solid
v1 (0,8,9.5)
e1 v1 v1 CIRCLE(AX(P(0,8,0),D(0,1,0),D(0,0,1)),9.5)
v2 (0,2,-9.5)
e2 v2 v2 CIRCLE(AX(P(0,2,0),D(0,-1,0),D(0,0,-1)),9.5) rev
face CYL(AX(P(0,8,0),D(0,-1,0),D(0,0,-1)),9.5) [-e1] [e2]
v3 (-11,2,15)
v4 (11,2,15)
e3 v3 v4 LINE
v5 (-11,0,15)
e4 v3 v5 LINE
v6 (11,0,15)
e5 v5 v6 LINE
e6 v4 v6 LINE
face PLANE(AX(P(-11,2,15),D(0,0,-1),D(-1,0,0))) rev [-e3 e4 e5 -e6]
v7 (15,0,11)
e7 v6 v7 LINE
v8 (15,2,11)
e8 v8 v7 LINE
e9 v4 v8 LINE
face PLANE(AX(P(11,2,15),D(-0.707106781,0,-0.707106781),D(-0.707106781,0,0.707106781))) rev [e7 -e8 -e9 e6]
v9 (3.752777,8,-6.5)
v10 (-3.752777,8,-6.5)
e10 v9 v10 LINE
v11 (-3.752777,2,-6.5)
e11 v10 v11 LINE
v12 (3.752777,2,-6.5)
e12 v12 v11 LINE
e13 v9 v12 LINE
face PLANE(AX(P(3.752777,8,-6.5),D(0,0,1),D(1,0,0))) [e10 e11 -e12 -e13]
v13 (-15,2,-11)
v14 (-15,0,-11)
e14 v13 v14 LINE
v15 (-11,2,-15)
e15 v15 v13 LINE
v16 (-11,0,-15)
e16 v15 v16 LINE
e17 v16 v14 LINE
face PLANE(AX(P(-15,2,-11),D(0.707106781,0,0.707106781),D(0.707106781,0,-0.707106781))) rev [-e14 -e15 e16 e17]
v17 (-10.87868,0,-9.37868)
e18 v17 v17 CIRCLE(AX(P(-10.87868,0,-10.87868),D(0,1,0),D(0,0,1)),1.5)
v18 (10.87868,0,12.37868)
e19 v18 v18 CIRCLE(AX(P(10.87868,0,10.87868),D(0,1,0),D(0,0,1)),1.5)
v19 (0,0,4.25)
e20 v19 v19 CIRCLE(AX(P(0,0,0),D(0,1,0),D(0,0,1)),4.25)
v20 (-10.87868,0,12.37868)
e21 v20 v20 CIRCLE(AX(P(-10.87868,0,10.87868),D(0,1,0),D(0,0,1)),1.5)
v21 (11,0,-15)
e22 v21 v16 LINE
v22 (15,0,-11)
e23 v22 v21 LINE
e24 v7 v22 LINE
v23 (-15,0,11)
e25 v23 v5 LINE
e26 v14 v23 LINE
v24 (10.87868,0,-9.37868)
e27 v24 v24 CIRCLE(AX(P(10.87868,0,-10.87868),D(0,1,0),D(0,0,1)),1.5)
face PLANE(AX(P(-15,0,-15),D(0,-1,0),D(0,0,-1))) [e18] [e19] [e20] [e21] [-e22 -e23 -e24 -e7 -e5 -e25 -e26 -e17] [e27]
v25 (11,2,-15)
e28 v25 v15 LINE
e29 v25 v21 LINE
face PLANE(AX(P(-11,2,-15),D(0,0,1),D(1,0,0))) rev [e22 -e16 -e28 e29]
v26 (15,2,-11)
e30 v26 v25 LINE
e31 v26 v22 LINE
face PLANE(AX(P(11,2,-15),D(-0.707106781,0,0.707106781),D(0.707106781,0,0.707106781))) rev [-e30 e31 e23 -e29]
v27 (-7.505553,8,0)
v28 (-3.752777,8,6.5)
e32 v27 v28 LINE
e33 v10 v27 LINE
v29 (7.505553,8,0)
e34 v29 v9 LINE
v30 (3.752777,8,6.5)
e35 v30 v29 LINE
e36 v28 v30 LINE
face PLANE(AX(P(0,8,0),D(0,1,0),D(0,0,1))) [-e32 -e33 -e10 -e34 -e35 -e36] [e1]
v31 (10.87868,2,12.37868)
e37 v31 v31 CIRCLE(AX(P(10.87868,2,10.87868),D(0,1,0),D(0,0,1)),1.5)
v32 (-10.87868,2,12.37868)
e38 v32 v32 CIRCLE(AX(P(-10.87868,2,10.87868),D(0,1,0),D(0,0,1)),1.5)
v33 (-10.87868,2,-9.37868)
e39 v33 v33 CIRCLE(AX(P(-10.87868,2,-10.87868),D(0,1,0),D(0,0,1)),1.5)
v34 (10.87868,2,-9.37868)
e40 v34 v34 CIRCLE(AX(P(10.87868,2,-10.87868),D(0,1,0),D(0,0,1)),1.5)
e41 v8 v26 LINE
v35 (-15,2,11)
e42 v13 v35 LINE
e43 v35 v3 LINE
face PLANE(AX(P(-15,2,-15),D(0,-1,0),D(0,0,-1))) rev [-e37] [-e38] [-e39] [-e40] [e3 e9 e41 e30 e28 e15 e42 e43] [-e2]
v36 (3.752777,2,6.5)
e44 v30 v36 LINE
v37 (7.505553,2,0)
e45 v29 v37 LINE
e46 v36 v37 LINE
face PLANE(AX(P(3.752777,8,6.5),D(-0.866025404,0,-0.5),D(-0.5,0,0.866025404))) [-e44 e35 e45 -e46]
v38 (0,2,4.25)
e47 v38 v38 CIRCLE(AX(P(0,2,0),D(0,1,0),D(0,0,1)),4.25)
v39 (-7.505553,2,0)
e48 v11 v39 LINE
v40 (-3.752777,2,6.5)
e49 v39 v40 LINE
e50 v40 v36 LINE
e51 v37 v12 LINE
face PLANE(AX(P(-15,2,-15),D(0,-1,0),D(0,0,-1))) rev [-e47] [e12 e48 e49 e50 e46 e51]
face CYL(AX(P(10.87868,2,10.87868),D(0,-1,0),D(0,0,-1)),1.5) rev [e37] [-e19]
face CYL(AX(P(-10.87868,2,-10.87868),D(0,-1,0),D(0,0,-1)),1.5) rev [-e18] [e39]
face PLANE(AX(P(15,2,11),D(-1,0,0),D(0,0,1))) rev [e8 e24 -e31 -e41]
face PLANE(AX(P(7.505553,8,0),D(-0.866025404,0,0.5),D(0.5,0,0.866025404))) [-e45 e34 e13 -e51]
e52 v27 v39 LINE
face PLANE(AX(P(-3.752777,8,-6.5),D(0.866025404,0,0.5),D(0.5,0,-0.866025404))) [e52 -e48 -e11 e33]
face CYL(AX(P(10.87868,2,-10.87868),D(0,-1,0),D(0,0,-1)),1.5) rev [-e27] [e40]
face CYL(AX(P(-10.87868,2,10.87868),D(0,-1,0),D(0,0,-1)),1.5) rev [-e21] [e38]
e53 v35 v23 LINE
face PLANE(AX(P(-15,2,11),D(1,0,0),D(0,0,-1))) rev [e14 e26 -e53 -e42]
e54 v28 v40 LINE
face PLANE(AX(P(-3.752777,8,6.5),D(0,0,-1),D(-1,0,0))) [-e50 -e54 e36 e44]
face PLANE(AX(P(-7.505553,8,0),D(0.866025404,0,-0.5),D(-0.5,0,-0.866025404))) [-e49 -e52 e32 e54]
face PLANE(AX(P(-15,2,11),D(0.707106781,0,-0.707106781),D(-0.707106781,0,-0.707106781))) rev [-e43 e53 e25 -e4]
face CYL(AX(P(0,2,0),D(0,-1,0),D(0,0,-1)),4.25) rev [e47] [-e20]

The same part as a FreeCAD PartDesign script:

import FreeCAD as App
import Part
import Sketcher
Q = App.Units.Quantity

doc = App.newDocument("Part")
body = doc.addObject("PartDesign::Body", "Body")

sketch1 = doc.addObject("Sketcher::SketchObject", "Sketch")
body.addObject(sketch1)
sketch1.AttachmentSupport = (doc.XZ_Plane, [""])
sketch1.MapMode = "FlatFace"
sketch1.addGeometry([
    Part.LineSegment(App.Vector(-11, -15, 0), App.Vector(-15, -11, 0)),
    Part.LineSegment(App.Vector(-15, -11, 0), App.Vector(-15, 11, 0)),
    Part.LineSegment(App.Vector(-15, 11, 0), App.Vector(-11, 15, 0)),
    Part.LineSegment(App.Vector(-11, 15, 0), App.Vector(11, 15, 0)),
    Part.LineSegment(App.Vector(11, 15, 0), App.Vector(15, 11, 0)),
    Part.LineSegment(App.Vector(15, 11, 0), App.Vector(15, -11, 0)),
    Part.LineSegment(App.Vector(15, -11, 0), App.Vector(11, -15, 0)),
    Part.LineSegment(App.Vector(11, -15, 0), App.Vector(-11, -15, 0)),
    Part.Circle(App.Vector(10.9, 10.9, 0), App.Vector(0, 0, 1), 1.5),
    Part.Circle(App.Vector(0, 0, 0), App.Vector(0, 0, 1), 4.2),
    Part.Circle(App.Vector(-10.9, 10.9, 0), App.Vector(0, 0, 1), 1.5),
    Part.Circle(App.Vector(10.9, -10.9, 0), App.Vector(0, 0, 1), 1.5),
    Part.Circle(App.Vector(-10.9, -10.9, 0), App.Vector(0, 0, 1), 1.5),
], False)
sketch1.addConstraint([
    Sketcher.Constraint("Coincident", 0, 2, 1, 1),
    Sketcher.Constraint("Coincident", 1, 2, 2, 1),
    Sketcher.Constraint("Coincident", 2, 2, 3, 1),
    Sketcher.Constraint("Coincident", 3, 2, 4, 1),
    Sketcher.Constraint("Coincident", 4, 2, 5, 1),
    Sketcher.Constraint("Coincident", 5, 2, 6, 1),
    Sketcher.Constraint("Coincident", 6, 2, 7, 1),
    Sketcher.Constraint("Coincident", 7, 2, 0, 1),
    Sketcher.Constraint("Vertical", 1),
    Sketcher.Constraint("Horizontal", 3),
    Sketcher.Constraint("Vertical", 5),
    Sketcher.Constraint("Horizontal", 7),
    Sketcher.Constraint("Coincident", 9, 3, -1, 1),
    Sketcher.Constraint("Equal", 8, 10),
    Sketcher.Constraint("Equal", 10, 11),
    Sketcher.Constraint("Equal", 11, 12),
    Sketcher.Constraint("Symmetric", 10, 3, 11, 3, -1, 1),
    Sketcher.Constraint("Symmetric", 8, 3, 12, 3, -1, 1),
    Sketcher.Constraint("Symmetric", 0, 2, 4, 2, -1, 1),
    Sketcher.Constraint("Symmetric", 2, 2, 6, 2, -1, 1),
    Sketcher.Constraint("Symmetric", 8, 3, 10, 3, -2),
    Sketcher.Constraint("Perpendicular", 0, 2),
    Sketcher.Constraint("Perpendicular", 2, 4),
    Sketcher.Constraint("Perpendicular", 4, 6),
    Sketcher.Constraint("Horizontal", 1, 2, 4, 2),
    Sketcher.Constraint("Vertical", 3, 2, 6, 2),
    Sketcher.Constraint("Equal", 7, 1),
    Sketcher.Constraint("Diameter", 8, 3.0),
    Sketcher.Constraint("Diameter", 9, 8.5),
    Sketcher.Constraint("DistanceX", 3, 1, 3, 2, 22.0),
    Sketcher.Constraint("DistanceX", 0, 2, -1, 1, 15.0),
    Sketcher.Constraint("DistanceX", -1, 1, 8, 3, 10.87868),
    Sketcher.Constraint("DistanceY", -1, 1, 8, 3, 10.87868),
])
pad1 = doc.addObject("PartDesign::Pad", "Pad")
body.addObject(pad1)
pad1.Profile = sketch1
pad1.Length = 2
pad1.Reversed = True

sketch2 = doc.addObject("Sketcher::SketchObject", "Sketch001")
body.addObject(sketch2)
sketch2.AttachmentSupport = (doc.XZ_Plane, [""])
sketch2.MapMode = "FlatFace"
sketch2.AttachmentOffset = App.Placement(App.Vector(0, 0, -2), App.Rotation())
sketch2.addGeometry([
    Part.Circle(App.Vector(0, 0, 0), App.Vector(0, 0, 1), 10),
    Part.LineSegment(App.Vector(4, -6, 0), App.Vector(8, 0, 0)),
    Part.LineSegment(App.Vector(8, 0, 0), App.Vector(4, 6, 0)),
    Part.LineSegment(App.Vector(4, 6, 0), App.Vector(-4, 6, 0)),
    Part.LineSegment(App.Vector(-4, 6, 0), App.Vector(-8, 0, 0)),
    Part.LineSegment(App.Vector(-8, 0, 0), App.Vector(-4, -6, 0)),
    Part.LineSegment(App.Vector(-4, -6, 0), App.Vector(4, -6, 0)),
], False)
sketch2.addConstraint([
    Sketcher.Constraint("Coincident", 1, 2, 2, 1),
    Sketcher.Constraint("Coincident", 2, 2, 3, 1),
    Sketcher.Constraint("Coincident", 3, 2, 4, 1),
    Sketcher.Constraint("Coincident", 4, 2, 5, 1),
    Sketcher.Constraint("Coincident", 5, 2, 6, 1),
    Sketcher.Constraint("Coincident", 6, 2, 1, 1),
    Sketcher.Constraint("Horizontal", 3),
    Sketcher.Constraint("Horizontal", 6),
    Sketcher.Constraint("Coincident", 0, 3, -1, 1),
    Sketcher.Constraint("Symmetric", 1, 2, 4, 2, -1, 1),
    Sketcher.Constraint("Symmetric", 2, 2, 5, 2, -1, 1),
    Sketcher.Constraint("PointOnObject", 1, 2, -1),
    Sketcher.Constraint("Parallel", 1, 4),
    Sketcher.Constraint("Vertical", 3, 2, 5, 2),
    Sketcher.Constraint("Diameter", 0, 19.0),
    Sketcher.Constraint("Angle", 1, Q("60 deg")),
    Sketcher.Constraint("DistanceY", 5, 2, 3, 2, 13.0),
    Sketcher.Constraint("DistanceX", 3, 2, 3, 1, 7.505554),
])
pad2 = doc.addObject("PartDesign::Pad", "Pad001")
body.addObject(pad2)
pad2.Profile = sketch2
pad2.Length = 6
pad2.Reversed = True

doc.recompute()
